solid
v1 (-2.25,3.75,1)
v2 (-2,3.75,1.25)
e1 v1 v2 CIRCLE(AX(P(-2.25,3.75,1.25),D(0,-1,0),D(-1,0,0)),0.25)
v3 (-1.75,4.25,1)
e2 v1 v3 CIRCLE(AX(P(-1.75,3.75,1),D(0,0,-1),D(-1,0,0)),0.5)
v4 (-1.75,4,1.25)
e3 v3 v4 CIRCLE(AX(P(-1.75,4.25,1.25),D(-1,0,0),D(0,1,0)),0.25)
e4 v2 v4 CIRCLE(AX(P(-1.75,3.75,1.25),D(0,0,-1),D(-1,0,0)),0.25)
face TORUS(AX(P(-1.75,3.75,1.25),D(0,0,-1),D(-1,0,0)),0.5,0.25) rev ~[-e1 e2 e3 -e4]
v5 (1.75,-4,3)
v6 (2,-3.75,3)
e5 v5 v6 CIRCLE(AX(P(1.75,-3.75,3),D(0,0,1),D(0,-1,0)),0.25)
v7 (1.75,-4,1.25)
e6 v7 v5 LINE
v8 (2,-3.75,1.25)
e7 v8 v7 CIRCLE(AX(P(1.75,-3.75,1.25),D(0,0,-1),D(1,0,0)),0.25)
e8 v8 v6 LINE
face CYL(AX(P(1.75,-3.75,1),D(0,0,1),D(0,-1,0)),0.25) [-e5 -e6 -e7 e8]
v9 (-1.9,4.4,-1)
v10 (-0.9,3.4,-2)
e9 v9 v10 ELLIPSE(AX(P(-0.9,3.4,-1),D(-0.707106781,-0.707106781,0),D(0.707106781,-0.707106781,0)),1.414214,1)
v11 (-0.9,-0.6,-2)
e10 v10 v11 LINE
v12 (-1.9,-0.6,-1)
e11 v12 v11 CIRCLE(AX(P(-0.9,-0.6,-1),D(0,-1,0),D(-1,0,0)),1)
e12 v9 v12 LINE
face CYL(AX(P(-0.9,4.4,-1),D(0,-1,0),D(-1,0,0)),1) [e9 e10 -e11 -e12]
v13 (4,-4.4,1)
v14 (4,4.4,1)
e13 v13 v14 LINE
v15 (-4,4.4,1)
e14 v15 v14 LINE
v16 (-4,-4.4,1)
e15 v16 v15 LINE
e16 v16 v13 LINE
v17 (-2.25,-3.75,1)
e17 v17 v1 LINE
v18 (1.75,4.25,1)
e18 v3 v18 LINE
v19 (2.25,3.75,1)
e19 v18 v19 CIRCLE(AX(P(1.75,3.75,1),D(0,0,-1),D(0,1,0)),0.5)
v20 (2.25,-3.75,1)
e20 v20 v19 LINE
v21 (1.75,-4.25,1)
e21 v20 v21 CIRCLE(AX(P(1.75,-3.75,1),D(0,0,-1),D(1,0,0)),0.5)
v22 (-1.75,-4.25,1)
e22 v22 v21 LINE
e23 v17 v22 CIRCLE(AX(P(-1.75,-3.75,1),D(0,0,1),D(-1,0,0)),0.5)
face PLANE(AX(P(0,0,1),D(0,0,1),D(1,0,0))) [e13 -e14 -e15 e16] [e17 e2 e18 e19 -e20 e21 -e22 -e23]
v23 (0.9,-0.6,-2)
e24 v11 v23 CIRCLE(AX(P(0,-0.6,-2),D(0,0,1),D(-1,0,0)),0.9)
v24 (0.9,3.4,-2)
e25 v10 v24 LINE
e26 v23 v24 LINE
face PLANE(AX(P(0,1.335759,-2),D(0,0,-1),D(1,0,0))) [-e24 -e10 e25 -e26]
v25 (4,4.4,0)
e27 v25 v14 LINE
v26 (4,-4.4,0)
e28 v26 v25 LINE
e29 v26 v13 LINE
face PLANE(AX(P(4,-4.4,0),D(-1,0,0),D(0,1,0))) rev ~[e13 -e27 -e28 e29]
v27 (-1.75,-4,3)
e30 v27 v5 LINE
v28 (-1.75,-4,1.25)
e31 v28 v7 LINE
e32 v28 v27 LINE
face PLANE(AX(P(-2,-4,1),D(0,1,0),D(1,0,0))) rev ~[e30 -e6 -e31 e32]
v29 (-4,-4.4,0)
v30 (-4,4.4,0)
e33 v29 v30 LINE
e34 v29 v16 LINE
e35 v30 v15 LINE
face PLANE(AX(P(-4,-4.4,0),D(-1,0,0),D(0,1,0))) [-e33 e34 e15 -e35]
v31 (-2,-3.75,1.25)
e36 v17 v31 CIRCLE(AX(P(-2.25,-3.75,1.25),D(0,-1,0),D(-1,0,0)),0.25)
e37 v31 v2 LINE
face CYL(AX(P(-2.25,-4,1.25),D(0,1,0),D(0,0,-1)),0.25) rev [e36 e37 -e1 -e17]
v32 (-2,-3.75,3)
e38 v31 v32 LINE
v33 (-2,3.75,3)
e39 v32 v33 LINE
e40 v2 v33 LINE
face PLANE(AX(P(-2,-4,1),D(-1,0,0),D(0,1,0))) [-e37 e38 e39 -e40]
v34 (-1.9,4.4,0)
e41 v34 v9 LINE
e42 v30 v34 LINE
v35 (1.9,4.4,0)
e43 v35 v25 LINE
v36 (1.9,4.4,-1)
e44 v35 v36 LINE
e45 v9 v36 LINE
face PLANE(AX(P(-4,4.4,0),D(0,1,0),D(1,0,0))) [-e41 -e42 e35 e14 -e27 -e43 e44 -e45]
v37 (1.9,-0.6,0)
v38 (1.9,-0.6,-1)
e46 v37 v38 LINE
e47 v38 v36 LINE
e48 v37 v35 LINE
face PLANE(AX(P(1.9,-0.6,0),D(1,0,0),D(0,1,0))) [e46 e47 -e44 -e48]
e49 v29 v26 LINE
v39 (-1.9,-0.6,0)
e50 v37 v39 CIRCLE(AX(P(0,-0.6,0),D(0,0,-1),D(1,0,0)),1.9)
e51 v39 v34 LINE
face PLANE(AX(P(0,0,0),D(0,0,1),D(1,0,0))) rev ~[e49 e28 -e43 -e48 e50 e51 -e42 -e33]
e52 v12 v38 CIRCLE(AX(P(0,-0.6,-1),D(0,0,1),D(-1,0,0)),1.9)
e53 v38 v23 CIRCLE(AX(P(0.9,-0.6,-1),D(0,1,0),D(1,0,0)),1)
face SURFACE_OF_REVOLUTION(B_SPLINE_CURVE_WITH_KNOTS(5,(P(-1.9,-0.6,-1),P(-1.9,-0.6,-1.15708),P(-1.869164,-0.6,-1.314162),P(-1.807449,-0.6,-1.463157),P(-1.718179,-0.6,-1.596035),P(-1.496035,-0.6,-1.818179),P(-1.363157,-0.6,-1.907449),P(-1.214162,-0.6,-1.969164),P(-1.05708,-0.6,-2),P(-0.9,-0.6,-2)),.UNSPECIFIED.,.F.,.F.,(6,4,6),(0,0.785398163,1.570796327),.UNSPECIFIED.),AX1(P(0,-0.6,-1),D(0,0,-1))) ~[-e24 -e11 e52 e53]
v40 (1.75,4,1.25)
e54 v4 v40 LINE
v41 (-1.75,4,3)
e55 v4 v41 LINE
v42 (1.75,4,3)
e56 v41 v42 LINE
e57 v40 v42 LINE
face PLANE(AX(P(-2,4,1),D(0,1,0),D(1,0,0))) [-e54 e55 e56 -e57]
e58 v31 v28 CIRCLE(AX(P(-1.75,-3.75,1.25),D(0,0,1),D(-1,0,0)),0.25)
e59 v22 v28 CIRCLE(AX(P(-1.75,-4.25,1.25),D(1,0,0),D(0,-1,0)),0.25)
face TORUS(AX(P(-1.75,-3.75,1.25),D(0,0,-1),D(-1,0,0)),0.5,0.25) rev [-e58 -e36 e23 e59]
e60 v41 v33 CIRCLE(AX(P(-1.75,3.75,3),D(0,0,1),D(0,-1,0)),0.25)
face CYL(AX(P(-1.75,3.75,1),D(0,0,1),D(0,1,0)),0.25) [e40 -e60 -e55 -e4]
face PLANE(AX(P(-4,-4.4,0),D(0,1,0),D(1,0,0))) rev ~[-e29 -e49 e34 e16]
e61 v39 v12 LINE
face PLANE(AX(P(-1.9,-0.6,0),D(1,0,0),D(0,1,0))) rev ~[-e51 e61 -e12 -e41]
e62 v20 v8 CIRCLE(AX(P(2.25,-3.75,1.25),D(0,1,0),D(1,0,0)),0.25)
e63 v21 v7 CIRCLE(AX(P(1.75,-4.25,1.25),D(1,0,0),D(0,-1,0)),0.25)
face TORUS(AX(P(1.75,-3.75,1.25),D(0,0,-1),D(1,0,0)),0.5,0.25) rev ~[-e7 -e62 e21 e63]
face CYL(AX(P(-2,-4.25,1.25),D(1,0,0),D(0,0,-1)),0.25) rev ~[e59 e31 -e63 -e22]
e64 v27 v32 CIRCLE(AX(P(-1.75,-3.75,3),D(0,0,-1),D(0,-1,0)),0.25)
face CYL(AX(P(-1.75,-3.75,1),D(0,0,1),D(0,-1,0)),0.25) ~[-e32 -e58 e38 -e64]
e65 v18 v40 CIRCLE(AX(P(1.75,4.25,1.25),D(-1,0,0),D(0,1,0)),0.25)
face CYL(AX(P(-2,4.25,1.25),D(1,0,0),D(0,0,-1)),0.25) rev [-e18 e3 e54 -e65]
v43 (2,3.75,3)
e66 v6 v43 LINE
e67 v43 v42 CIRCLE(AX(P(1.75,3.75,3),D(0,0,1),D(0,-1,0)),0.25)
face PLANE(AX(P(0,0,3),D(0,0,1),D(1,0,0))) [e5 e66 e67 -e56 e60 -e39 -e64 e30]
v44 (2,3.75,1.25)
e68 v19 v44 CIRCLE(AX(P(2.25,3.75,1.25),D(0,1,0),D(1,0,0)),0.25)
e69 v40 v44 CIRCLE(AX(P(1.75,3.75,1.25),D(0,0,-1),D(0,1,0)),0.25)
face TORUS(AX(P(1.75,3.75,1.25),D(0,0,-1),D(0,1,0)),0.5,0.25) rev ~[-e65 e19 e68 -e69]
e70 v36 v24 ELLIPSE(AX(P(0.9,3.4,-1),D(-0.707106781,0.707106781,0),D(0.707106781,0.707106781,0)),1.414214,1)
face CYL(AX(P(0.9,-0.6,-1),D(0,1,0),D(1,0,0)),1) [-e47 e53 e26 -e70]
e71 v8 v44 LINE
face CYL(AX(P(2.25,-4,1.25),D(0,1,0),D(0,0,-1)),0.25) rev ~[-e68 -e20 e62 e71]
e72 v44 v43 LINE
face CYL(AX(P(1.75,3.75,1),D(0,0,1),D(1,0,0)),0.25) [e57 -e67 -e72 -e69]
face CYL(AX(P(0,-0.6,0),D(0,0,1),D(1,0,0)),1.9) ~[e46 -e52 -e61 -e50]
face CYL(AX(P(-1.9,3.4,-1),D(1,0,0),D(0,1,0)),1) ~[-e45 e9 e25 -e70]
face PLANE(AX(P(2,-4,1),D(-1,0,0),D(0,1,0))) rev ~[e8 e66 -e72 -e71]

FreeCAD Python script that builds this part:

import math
import FreeCAD as App
import Part
import Sketcher
from FreeCAD import Vector
Q = App.Units.Quantity


def edges_at(feature, points):
    """Names of the edges that pass closest to the given points."""
    edges = feature.Shape.Edges
    near = lambda p: min(range(len(edges)), key=lambda i: edges[i].distToShape(Part.Vertex(*p))[0])
    return sorted({f"Edge{near(p) + 1}" for p in points})


def add_polygon(sketch, points):
    """Adds a closed chain of lines whose ends are joined by coincident constraints."""
    first, n = sketch.GeometryCount, len(points)
    for a, b in zip(points, points[1:] + points[:1]):
        sketch.addGeometry(Part.LineSegment(App.Vector(*a, 0), App.Vector(*b, 0)), False)
    for i in range(n):
        sketch.addConstraint(Sketcher.Constraint("Coincident", first + i, 2, first + (i + 1) % n, 1))

doc = App.newDocument("Part")
body = doc.addObject("PartDesign::Body", "Body")

sketch1 = doc.addObject("Sketcher::SketchObject", "Sketch")
body.addObject(sketch1)
sketch1.AttachmentSupport = (doc.XY_Plane, [""])
sketch1.MapMode = "FlatFace"
add_polygon(sketch1, [(-4, 4), (-4, -4), (4, -4), (4, 4)])
sketch1.addConstraint([
    Sketcher.Constraint("Vertical", 0),
    Sketcher.Constraint("Horizontal", 1),
    Sketcher.Constraint("Vertical", 2),
    Sketcher.Constraint("Horizontal", 3),
    Sketcher.Constraint("Symmetric", 0, 2, 2, 2, -1, 1),
    Sketcher.Constraint("DistanceX", 1, 1, 1, 2, Q("8 mm")),
    Sketcher.Constraint("DistanceY", 0, 2, 0, 1, Q("8.8 mm")),
])
pad1 = doc.addObject("PartDesign::Pad", "Pad")
body.addObject(pad1)
pad1.Profile = sketch1
pad1.Length = 1

sketch2 = doc.addObject("Sketcher::SketchObject", "Sketch001")
body.addObject(sketch2)
sketch2.AttachmentSupport = (doc.XY_Plane, [""])
sketch2.MapMode = "FlatFace"
sketch2.addGeometry([
    Part.ArcOfCircle(Part.Circle(Vector(0, -0.6, 0), Vector(0, 0, 1), 1.9), math.radians(180), math.radians(360)),
    Part.LineSegment(Vector(-1.9, -0.6, 0), Vector(-1.9, 4.4, 0)),
    Part.LineSegment(Vector(-1.9, 4.4, 0), Vector(1.9, 4.4, 0)),
    Part.LineSegment(Vector(1.9, 4.4, 0), Vector(1.9, -0.6, 0)),
], False)
sketch2.addConstraint([
    Sketcher.Constraint("Tangent", 0, 1, 1, 1),
    Sketcher.Constraint("Coincident", 1, 2, 2, 1),
    Sketcher.Constraint("Coincident", 2, 2, 3, 1),
    Sketcher.Constraint("Tangent", 3, 2, 0, 2),
    Sketcher.Constraint("Vertical", 1),
    Sketcher.Constraint("Horizontal", 2),
    Sketcher.Constraint("Vertical", 3),
    Sketcher.Constraint("PointOnObject", 0, 3, -2),
    Sketcher.Constraint("Radius", 0, Q("1.9 mm")),
    Sketcher.Constraint("DistanceY", 1, 1, 1, 2, Q("5 mm")),
    Sketcher.Constraint("DistanceY", 0, 3, -1, 1, Q("0.6 mm")),
])
pad2 = doc.addObject("PartDesign::Pad", "Pad001")
body.addObject(pad2)
pad2.Profile = sketch2
pad2.Length = 2
pad2.Reversed = True
doc.recompute()

fillet = doc.addObject("PartDesign::Fillet", "Fillet")
body.addObject(fillet)
fillet.Base = (pad2, edges_at(pad2, [
    (1.9, 1.9, -2),
    (0, -2.5, -2),
    (-1.9, 1.9, -2),
    (0, 4.4, -2),
]))
fillet.Radius = 1

sketch3 = doc.addObject("Sketcher::SketchObject", "Sketch002")
body.addObject(sketch3)
sketch3.AttachmentSupport = (doc.XY_Plane, [""])
sketch3.MapMode = "FlatFace"
sketch3.AttachmentOffset = App.Placement(Vector(0, 0, 1), App.Rotation())
add_polygon(sketch3, [(-2, 4), (-2, -4), (2, -4), (2, 4)])
sketch3.addConstraint([
    Sketcher.Constraint("Vertical", 0),
    Sketcher.Constraint("Horizontal", 1),
    Sketcher.Constraint("Vertical", 2),
    Sketcher.Constraint("Horizontal", 3),
    Sketcher.Constraint("Symmetric", 0, 2, 2, 2, -1, 1),
    Sketcher.Constraint("DistanceX", 1, 1, 1, 2, Q("4 mm")),
    Sketcher.Constraint("DistanceY", 0, 2, 0, 1, Q("8 mm")),
])
pad3 = doc.addObject("PartDesign::Pad", "Pad002")
body.addObject(pad3)
pad3.Profile = sketch3
pad3.Length = 2
doc.recompute()

fillet2 = doc.addObject("PartDesign::Fillet", "Fillet001")
body.addObject(fillet2)
fillet2.Base = (pad3, edges_at(pad3, [
    (-2, 4, 2),
    (2, 4, 2),
    (2, -4, 2),
    (-2, -4, 2),
    (-2, 0, 1),
    (0, 4, 1),
    (2, 0, 1),
    (0, -4, 1),
]))
fillet2.Radius = 0.25

doc.recompute()
